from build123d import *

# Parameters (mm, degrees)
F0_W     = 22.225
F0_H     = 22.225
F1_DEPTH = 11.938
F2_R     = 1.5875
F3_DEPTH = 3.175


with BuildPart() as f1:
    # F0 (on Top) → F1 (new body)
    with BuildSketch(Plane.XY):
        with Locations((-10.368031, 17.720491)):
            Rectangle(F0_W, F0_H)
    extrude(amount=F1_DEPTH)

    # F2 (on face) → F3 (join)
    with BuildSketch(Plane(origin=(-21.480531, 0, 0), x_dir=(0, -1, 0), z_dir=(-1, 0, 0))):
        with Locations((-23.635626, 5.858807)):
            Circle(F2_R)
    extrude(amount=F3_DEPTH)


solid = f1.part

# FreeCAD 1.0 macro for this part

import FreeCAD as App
import Part
import Sketcher
Q = App.Units.Quantity

doc = App.newDocument("Part")
body = doc.addObject("PartDesign::Body", "Body")

# Sketch on XY plane
sketch1 = doc.addObject("Sketcher::SketchObject", "Sketch")
body.addObject(sketch1)
sketch1.AttachmentSupport = (doc.XY_Plane, [""])
sketch1.MapMode = "FlatFace"
sketch1.addGeometry([
    Part.LineSegment(App.Vector(-21.480531, 28.832991, 0), App.Vector(-21.480531, 6.607991, 0)),
    Part.LineSegment(App.Vector(-21.480531, 6.607991, 0), App.Vector(0.744469, 6.607991, 0)),
    Part.LineSegment(App.Vector(0.744469, 6.607991, 0), App.Vector(0.744469, 28.832991, 0)),
    Part.LineSegment(App.Vector(0.744469, 28.832991, 0), App.Vector(-21.480531, 28.832991, 0)),
], False)
sketch1.addConstraint([
    Sketcher.Constraint("Coincident", 0, 2, 1, 1),
    Sketcher.Constraint("Coincident", 1, 2, 2, 1),
    Sketcher.Constraint("Coincident", 2, 2, 3, 1),
    Sketcher.Constraint("Coincident", 3, 2, 0, 1),
    Sketcher.Constraint("Vertical", 0),
    Sketcher.Constraint("Horizontal", 1),
    Sketcher.Constraint("Vertical", 2),
    Sketcher.Constraint("Horizontal", 3),
    Sketcher.Constraint("Equal", 3, 0),
    Sketcher.Constraint("DistanceX", 1, 1, 1, 2, Q("0.875 in")),
    Sketcher.Constraint("DistanceX", 0, 2, -1, 1, 21.480531),
    Sketcher.Constraint("DistanceY", -1, 1, 0, 2, 6.607991),
])
pad1 = doc.addObject("PartDesign::Pad", "Pad")
body.addObject(pad1)
pad1.Profile = sketch1
pad1.Length = Q("0.47 in")

# Sketch on YZ plane
sketch2 = doc.addObject("Sketcher::SketchObject", "Sketch001")
body.addObject(sketch2)
sketch2.AttachmentSupport = (doc.YZ_Plane, [""])
sketch2.MapMode = "FlatFace"
sketch2.AttachmentOffset = App.Placement(App.Vector(0, 0, -21.480531), App.Rotation())
sketch2.addGeometry(Part.Circle(App.Vector(23.635626, 5.858807, 0), App.Vector(0, 0, 1), 1.5875), False)
sketch2.addConstraint([
    Sketcher.Constraint("Diameter", 0, Q("0.125 in")),
    Sketcher.Constraint("DistanceX", -1, 1, 0, 3, 23.635626),
    Sketcher.Constraint("DistanceY", -1, 1, 0, 3, 5.858807),
])
pad2 = doc.addObject("PartDesign::Pad", "Pad001")
body.addObject(pad2)
pad2.Profile = sketch2
pad2.Length = Q("0.125 in")
pad2.Reversed = True

doc.recompute()
